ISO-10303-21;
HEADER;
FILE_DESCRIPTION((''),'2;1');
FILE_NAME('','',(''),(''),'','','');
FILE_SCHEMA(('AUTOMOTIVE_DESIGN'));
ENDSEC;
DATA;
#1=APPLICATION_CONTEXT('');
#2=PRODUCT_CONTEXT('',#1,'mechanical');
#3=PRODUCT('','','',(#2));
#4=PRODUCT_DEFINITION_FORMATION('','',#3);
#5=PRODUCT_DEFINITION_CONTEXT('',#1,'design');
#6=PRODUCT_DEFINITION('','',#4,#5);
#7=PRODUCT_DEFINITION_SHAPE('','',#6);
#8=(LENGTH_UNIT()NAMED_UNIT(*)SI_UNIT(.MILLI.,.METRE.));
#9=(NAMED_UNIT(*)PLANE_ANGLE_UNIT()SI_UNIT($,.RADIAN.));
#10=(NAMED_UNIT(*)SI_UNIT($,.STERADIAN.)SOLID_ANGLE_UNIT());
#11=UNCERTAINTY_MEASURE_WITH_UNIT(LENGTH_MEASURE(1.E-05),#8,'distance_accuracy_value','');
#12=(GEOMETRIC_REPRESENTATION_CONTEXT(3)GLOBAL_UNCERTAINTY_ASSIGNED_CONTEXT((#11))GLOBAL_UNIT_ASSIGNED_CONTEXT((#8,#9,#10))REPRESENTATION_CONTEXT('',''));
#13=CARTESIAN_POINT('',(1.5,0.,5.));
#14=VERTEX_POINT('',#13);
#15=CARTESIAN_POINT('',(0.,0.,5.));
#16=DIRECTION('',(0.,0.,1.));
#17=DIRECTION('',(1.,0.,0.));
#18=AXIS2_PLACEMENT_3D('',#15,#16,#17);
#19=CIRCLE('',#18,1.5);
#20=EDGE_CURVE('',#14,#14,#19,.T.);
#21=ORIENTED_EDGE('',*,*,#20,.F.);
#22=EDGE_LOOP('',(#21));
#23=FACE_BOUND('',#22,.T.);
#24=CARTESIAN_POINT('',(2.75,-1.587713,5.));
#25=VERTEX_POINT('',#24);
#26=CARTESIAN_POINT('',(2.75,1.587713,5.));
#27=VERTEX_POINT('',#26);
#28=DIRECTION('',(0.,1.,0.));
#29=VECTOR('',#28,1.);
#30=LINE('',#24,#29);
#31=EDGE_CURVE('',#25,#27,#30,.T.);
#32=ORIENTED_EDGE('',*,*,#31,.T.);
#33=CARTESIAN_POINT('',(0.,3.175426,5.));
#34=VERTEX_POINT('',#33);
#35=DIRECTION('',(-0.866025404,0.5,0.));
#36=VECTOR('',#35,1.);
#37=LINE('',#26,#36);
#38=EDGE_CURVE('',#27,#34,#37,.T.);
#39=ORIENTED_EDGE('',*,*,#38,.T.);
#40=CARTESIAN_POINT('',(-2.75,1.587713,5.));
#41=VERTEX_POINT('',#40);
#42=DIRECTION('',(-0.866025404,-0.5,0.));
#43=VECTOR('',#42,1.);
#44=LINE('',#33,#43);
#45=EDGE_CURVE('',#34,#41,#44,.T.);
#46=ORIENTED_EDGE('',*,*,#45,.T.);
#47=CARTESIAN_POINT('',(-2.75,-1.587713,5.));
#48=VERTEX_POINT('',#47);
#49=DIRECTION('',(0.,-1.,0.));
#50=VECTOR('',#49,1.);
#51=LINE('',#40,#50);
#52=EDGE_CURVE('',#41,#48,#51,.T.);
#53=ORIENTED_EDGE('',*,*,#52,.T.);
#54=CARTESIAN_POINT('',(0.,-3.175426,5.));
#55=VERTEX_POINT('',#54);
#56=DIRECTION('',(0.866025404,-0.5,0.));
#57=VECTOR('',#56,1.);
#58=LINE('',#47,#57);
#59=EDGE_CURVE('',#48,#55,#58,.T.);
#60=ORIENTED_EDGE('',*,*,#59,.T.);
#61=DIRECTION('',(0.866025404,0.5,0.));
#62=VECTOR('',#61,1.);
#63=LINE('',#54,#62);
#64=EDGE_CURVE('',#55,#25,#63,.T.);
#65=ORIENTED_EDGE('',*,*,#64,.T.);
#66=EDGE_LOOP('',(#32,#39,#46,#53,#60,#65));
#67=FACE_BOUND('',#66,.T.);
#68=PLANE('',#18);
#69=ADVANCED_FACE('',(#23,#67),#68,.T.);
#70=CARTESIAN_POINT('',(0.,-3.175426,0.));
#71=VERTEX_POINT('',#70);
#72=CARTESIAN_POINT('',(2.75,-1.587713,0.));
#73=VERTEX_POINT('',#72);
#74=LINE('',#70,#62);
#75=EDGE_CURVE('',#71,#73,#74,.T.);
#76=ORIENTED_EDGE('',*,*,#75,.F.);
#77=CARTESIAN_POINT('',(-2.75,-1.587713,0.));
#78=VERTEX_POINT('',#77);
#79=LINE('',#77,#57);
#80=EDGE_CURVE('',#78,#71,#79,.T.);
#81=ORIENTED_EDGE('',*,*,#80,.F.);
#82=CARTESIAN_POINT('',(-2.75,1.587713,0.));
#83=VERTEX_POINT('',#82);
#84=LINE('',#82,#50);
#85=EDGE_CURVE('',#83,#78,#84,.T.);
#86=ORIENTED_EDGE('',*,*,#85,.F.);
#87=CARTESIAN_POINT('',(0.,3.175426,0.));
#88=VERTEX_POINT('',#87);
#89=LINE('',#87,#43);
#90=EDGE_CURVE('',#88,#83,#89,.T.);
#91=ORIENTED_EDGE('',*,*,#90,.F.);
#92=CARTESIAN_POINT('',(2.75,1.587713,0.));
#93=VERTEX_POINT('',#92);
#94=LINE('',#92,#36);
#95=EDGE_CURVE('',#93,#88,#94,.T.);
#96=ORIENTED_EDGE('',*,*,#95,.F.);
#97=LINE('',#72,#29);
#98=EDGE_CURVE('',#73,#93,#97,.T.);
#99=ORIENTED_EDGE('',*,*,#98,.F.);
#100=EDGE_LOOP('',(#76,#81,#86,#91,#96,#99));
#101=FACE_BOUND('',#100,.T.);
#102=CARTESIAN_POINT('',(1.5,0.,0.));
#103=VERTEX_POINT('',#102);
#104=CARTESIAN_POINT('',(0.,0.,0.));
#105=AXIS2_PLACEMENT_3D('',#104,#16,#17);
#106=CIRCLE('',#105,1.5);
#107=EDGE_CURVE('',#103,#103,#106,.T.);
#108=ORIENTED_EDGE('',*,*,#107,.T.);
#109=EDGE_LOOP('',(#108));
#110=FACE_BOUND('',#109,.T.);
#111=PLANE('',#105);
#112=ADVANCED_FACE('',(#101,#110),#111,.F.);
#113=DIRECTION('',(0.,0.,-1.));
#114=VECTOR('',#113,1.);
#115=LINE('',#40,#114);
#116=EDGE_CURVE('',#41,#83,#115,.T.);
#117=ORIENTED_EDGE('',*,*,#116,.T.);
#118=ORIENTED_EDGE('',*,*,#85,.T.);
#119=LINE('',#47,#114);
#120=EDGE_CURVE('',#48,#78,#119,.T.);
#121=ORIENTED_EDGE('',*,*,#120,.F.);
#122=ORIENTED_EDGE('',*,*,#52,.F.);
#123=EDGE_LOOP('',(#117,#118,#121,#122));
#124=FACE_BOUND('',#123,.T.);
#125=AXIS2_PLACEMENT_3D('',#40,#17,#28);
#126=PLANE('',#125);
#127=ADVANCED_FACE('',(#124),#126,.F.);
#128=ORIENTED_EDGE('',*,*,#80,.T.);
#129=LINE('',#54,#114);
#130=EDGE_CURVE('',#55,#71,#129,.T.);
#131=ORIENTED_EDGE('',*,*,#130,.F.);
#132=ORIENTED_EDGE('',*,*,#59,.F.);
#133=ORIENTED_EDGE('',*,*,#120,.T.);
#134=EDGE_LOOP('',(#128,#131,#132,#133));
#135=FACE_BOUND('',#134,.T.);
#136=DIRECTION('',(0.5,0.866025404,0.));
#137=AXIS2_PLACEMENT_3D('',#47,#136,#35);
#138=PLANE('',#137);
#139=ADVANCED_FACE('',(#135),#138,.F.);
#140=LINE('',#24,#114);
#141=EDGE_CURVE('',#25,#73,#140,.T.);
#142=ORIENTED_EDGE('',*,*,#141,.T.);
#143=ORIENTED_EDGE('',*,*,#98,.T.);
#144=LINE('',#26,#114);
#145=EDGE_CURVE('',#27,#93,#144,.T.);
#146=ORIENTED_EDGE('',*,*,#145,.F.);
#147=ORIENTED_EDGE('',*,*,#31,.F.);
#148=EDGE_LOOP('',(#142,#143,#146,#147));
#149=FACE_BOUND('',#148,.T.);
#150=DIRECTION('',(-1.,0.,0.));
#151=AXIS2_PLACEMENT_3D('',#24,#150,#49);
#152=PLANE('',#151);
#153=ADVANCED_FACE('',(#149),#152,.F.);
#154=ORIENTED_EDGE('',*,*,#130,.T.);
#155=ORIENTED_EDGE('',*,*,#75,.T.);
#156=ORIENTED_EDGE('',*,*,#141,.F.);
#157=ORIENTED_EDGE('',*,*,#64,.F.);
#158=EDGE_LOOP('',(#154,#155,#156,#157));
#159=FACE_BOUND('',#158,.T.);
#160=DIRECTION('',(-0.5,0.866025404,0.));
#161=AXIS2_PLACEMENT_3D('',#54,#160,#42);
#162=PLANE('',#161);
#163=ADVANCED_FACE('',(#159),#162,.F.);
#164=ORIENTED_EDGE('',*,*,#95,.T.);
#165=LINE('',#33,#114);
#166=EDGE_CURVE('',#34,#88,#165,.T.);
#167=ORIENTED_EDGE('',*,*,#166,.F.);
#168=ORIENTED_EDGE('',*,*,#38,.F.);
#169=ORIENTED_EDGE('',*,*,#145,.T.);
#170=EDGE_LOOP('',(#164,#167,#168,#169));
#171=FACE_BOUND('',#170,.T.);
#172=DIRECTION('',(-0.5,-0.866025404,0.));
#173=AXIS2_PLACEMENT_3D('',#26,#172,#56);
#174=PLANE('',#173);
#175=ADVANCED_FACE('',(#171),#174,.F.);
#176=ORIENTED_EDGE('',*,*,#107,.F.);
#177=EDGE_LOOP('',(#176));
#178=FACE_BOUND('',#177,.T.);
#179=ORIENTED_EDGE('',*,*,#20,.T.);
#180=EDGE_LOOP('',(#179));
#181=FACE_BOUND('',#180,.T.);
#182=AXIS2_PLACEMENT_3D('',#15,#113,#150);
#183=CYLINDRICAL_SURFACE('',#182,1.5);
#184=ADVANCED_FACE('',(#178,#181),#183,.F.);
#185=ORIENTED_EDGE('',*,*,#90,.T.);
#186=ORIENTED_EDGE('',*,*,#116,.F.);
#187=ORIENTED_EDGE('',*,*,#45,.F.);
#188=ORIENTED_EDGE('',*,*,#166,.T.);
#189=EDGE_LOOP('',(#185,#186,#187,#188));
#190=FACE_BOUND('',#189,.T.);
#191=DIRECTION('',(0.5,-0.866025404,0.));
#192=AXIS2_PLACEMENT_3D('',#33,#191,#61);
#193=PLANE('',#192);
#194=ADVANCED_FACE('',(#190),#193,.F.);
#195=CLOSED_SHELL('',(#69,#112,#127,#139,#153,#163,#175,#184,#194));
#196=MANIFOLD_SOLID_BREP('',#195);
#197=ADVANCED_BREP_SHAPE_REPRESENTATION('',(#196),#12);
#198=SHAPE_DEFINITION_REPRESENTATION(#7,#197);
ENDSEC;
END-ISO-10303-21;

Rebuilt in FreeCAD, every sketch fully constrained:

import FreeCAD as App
import Part
import Sketcher
Q = App.Units.Quantity

doc = App.newDocument("Part")
params = doc.addObject("Spreadsheet::Sheet", "Params")
for row, (alias, value) in enumerate([
    ("sketch1_diameter", "3 mm"),
    ("pad1_length", "5 mm"),
], start=1):
    params.set(f"A{row}", alias)
    params.set(f"B{row}", "=" + value)
    params.setAlias(f"B{row}", alias)

body = doc.addObject("PartDesign::Body", "Body")

# Sketch on XY plane
sketch1 = doc.addObject("Sketcher::SketchObject", "Sketch")
body.addObject(sketch1)
sketch1.AttachmentSupport = (doc.XY_Plane, [""])
sketch1.MapMode = "FlatFace"
sketch1.addGeometry(Part.LineSegment(App.Vector(0, -3.2, 0), App.Vector(2.8, -1.6, 0)), False)
sketch1.addGeometry(Part.LineSegment(App.Vector(2.8, -1.6, 0), App.Vector(2.8, 1.6, 0)), False)
sketch1.addGeometry(Part.LineSegment(App.Vector(2.8, 1.6, 0), App.Vector(0, 3.2, 0)), False)
sketch1.addGeometry(Part.LineSegment(App.Vector(0, 3.2, 0), App.Vector(-2.8, 1.6, 0)), False)
sketch1.addGeometry(Part.LineSegment(App.Vector(-2.8, 1.6, 0), App.Vector(-2.8, -1.6, 0)), False)
sketch1.addGeometry(Part.LineSegment(App.Vector(-2.8, -1.6, 0), App.Vector(0, -3.2, 0)), False)
sketch1.addGeometry(Part.Circle(App.Vector(0, 0, 0), App.Vector(0, 0, 1), 1.5), False)
sketch1.addConstraint(Sketcher.Constraint("Coincident", 0, 2, 1, 1))
sketch1.addConstraint(Sketcher.Constraint("Coincident", 1, 2, 2, 1))
sketch1.addConstraint(Sketcher.Constraint("Coincident", 2, 2, 3, 1))
sketch1.addConstraint(Sketcher.Constraint("Coincident", 3, 2, 4, 1))
sketch1.addConstraint(Sketcher.Constraint("Coincident", 4, 2, 5, 1))
sketch1.addConstraint(Sketcher.Constraint("Coincident", 5, 2, 0, 1))
sketch1.addConstraint(Sketcher.Constraint("Vertical", 1))
sketch1.addConstraint(Sketcher.Constraint("Vertical", 4))
sketch1.addConstraint(Sketcher.Constraint("Coincident", 6, 3, -1, 1))
sketch1.addConstraint(Sketcher.Constraint("Symmetric", 0, 2, 3, 2, -1, 1))
sketch1.addConstraint(Sketcher.Constraint("Symmetric", 2, 2, 5, 2, -1, 1))
sketch1.addConstraint(Sketcher.Constraint("PointOnObject", 2, 2, -2))
sketch1.addConstraint(Sketcher.Constraint("Parallel", 2, 5))
sketch1.addConstraint(Sketcher.Constraint("Horizontal", 1, 2, 3, 2))
sketch1.addConstraint(Sketcher.Constraint("Diameter", 6, 3.0))
sketch1.addConstraint(Sketcher.Constraint("Angle", 0, Q("30 deg")))
sketch1.addConstraint(Sketcher.Constraint("DistanceX", 3, 2, 1, 2, 5.5))
sketch1.addConstraint(Sketcher.Constraint("DistanceY", 1, 1, 1, 2, 3.175426))
sketch1.setExpression("Constraints[14]", "Params.sketch1_diameter")
pad1 = doc.addObject("PartDesign::Pad", "Pad")
body.addObject(pad1)
pad1.Profile = sketch1
pad1.setExpression("Length", "Params.pad1_length")

doc.recompute()
